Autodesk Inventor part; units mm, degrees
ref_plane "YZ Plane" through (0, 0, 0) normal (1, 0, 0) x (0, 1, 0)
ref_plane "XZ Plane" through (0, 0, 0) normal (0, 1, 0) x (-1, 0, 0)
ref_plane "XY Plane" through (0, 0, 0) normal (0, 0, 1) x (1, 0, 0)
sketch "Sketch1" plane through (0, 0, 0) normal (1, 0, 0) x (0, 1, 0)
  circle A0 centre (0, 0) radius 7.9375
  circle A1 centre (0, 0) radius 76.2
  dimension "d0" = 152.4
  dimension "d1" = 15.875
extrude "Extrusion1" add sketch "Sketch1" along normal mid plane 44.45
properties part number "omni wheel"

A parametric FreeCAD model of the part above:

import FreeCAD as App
import Part
import Sketcher
Q = App.Units.Quantity

doc = App.newDocument("Part")
params = doc.addObject("Spreadsheet::Sheet", "Params")
for row, (alias, value) in enumerate([
    ("sketch1_diameter", "6 in"),
    ("sketch1_diameter2", "0.625 in"),
    ("pad1_length", "1.75 in"),
], start=1):
    params.set(f"A{row}", alias)
    params.set(f"B{row}", "=" + value)
    params.setAlias(f"B{row}", alias)

body = doc.addObject("PartDesign::Body", "Body")

# Sketch on YZ plane
sketch1 = doc.addObject("Sketcher::SketchObject", "Sketch")
body.addObject(sketch1)
sketch1.AttachmentSupport = (doc.YZ_Plane, [""])
sketch1.MapMode = "FlatFace"
sketch1.addGeometry([
    Part.Circle(App.Vector(0, 0, 0), App.Vector(0, 0, 1), 76),
    Part.Circle(App.Vector(0, 0, 0), App.Vector(0, 0, 1), 8),
], False)
sketch1.addConstraint([
    Sketcher.Constraint("Coincident", 0, 3, -1, 1),
    Sketcher.Constraint("Coincident", 1, 3, -1, 1),
    Sketcher.Constraint("Diameter", 0, Q("6 in")),
    Sketcher.Constraint("Diameter", 1, Q("0.625 in")),
])
sketch1.setExpression("Constraints[2]", "Params.sketch1_diameter")
sketch1.setExpression("Constraints[3]", "Params.sketch1_diameter2")
pad1 = doc.addObject("PartDesign::Pad", "Pad")
body.addObject(pad1)
pad1.Profile = sketch1
pad1.setExpression("Length", "Params.pad1_length")
pad1.Midplane = True

doc.recompute()
